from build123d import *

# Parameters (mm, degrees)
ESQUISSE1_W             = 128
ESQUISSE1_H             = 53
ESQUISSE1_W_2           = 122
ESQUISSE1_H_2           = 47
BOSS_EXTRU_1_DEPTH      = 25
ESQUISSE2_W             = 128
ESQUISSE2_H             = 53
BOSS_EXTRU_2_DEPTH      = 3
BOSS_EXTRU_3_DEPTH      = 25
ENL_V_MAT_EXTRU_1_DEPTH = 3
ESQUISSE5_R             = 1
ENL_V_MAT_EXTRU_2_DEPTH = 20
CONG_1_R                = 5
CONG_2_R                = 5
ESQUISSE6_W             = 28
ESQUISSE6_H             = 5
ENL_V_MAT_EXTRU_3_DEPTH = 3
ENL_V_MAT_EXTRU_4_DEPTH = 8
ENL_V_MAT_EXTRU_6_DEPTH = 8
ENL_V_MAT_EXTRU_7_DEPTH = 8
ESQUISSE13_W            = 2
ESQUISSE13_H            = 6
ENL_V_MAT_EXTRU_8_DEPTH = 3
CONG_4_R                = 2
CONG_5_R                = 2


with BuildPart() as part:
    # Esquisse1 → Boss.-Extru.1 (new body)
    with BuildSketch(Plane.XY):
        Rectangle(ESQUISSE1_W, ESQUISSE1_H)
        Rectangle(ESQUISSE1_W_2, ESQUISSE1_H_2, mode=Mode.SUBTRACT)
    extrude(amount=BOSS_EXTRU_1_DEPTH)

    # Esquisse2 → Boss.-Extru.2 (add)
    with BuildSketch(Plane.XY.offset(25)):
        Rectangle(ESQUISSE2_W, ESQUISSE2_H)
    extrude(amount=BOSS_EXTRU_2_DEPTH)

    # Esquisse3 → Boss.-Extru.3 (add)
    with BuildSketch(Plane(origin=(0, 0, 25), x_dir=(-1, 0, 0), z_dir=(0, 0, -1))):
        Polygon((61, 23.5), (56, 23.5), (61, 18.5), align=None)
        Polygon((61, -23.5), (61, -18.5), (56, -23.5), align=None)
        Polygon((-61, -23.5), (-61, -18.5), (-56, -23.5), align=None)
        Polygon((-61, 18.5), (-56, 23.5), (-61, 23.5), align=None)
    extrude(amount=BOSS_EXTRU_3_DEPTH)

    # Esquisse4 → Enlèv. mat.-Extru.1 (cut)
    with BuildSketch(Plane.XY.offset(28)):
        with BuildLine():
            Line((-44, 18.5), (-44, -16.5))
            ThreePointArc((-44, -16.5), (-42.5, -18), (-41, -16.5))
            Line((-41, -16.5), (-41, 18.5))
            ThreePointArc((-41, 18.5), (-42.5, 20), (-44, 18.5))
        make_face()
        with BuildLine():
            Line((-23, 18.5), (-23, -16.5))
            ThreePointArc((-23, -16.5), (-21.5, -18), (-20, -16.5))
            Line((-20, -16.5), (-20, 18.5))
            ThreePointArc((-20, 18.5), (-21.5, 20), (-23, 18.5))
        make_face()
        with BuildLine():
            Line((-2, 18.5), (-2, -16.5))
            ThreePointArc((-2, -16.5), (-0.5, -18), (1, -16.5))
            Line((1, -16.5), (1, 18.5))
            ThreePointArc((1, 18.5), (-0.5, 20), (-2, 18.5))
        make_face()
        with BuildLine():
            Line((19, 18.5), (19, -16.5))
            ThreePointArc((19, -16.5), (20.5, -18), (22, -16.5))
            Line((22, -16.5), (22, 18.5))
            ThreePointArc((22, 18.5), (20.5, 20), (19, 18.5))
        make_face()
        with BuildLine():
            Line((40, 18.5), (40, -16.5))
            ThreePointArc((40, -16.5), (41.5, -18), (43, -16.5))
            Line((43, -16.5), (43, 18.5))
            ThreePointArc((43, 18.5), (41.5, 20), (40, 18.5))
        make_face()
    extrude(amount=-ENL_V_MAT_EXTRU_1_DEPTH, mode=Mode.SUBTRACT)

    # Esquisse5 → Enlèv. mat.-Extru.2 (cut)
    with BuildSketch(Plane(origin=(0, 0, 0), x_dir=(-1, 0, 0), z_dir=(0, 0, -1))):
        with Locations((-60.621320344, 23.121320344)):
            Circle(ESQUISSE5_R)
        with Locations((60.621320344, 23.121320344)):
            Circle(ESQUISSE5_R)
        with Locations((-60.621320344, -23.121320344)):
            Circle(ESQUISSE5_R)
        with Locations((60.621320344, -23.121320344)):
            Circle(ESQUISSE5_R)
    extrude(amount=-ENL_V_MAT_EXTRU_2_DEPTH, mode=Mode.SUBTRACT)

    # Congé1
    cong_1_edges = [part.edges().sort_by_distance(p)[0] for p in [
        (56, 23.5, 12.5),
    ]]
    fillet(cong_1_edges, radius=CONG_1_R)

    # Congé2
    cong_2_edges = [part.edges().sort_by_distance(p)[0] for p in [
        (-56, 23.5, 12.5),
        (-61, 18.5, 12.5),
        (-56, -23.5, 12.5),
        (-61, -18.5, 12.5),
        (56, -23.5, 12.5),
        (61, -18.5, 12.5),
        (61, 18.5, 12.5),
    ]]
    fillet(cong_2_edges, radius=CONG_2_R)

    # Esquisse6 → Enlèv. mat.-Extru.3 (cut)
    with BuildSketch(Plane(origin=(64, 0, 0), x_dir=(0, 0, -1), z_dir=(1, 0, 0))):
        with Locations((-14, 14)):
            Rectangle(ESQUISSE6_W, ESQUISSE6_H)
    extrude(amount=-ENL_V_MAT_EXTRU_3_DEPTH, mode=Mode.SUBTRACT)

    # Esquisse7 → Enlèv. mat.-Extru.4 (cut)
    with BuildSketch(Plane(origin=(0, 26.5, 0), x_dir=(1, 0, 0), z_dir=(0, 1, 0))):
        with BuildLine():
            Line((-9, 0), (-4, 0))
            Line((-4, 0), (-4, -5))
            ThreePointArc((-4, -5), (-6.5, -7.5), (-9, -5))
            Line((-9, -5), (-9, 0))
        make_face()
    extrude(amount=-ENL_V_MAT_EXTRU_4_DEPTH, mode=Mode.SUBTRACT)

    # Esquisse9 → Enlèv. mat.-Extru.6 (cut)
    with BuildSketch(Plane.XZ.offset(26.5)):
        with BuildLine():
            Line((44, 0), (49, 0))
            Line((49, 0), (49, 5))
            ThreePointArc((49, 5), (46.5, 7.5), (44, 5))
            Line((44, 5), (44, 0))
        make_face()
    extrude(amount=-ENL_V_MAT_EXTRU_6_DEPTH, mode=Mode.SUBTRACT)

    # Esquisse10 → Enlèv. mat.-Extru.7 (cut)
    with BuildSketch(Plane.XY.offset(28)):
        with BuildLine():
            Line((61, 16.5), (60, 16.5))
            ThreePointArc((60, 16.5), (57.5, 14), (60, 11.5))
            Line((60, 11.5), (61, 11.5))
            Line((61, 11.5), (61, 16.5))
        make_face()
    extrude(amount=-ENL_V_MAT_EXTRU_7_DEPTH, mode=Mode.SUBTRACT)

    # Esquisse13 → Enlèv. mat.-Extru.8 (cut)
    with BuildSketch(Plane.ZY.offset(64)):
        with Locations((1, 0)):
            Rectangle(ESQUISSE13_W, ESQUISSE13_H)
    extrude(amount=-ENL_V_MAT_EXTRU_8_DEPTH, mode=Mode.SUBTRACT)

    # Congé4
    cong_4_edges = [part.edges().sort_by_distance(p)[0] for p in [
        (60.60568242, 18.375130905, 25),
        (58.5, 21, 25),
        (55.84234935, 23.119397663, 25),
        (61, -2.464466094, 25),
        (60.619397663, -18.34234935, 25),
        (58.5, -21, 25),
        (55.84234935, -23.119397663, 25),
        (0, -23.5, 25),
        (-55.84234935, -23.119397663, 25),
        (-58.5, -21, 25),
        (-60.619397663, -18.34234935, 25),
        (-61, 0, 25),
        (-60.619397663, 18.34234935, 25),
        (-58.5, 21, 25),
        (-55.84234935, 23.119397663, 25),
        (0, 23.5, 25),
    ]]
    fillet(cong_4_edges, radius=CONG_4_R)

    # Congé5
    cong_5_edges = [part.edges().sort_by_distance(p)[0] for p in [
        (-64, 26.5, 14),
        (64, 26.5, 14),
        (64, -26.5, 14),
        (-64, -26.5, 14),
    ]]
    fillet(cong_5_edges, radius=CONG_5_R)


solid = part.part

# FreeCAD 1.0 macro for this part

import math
import FreeCAD as App
import Part
import Sketcher
from FreeCAD import Vector


def edges_at(feature, points):
    """Names of the edges that pass closest to the given points."""
    edges = feature.Shape.Edges
    near = lambda p: min(range(len(edges)), key=lambda i: edges[i].distToShape(Part.Vertex(*p))[0])
    return sorted({f"Edge{near(p) + 1}" for p in points})

doc = App.newDocument("Part")
body = doc.addObject("PartDesign::Body", "Body")

# Sketch on XY plane
sketch1 = doc.addObject("Sketcher::SketchObject", "Sketch")
body.addObject(sketch1)
sketch1.AttachmentSupport = (doc.XY_Plane, [""])
sketch1.MapMode = "FlatFace"
sketch1.addGeometry(Part.LineSegment(Vector(-64, 26.5, 0), Vector(-64, -26.5, 0)), False)
sketch1.addGeometry(Part.LineSegment(Vector(-64, -26.5, 0), Vector(64, -26.5, 0)), False)
sketch1.addGeometry(Part.LineSegment(Vector(64, -26.5, 0), Vector(64, 26.5, 0)), False)
sketch1.addGeometry(Part.LineSegment(Vector(64, 26.5, 0), Vector(-64, 26.5, 0)), False)
sketch1.addGeometry(Part.LineSegment(Vector(61, -23.5, 0), Vector(-61, -23.5, 0)), False)
sketch1.addGeometry(Part.LineSegment(Vector(-61, -23.5, 0), Vector(-61, 23.5, 0)), False)
sketch1.addGeometry(Part.LineSegment(Vector(-61, 23.5, 0), Vector(61, 23.5, 0)), False)
sketch1.addGeometry(Part.LineSegment(Vector(61, 23.5, 0), Vector(61, -23.5, 0)), False)
sketch1.addConstraint(Sketcher.Constraint("Coincident", 0, 2, 1, 1))
sketch1.addConstraint(Sketcher.Constraint("Coincident", 1, 2, 2, 1))
sketch1.addConstraint(Sketcher.Constraint("Coincident", 2, 2, 3, 1))
sketch1.addConstraint(Sketcher.Constraint("Coincident", 3, 2, 0, 1))
sketch1.addConstraint(Sketcher.Constraint("Coincident", 4, 2, 5, 1))
sketch1.addConstraint(Sketcher.Constraint("Coincident", 5, 2, 6, 1))
sketch1.addConstraint(Sketcher.Constraint("Coincident", 6, 2, 7, 1))
sketch1.addConstraint(Sketcher.Constraint("Coincident", 7, 2, 4, 1))
sketch1.addConstraint(Sketcher.Constraint("Vertical", 0))
sketch1.addConstraint(Sketcher.Constraint("Horizontal", 1))
sketch1.addConstraint(Sketcher.Constraint("Vertical", 2))
sketch1.addConstraint(Sketcher.Constraint("Horizontal", 3))
sketch1.addConstraint(Sketcher.Constraint("Horizontal", 4))
sketch1.addConstraint(Sketcher.Constraint("Vertical", 5))
sketch1.addConstraint(Sketcher.Constraint("Horizontal", 6))
sketch1.addConstraint(Sketcher.Constraint("Vertical", 7))
sketch1.addConstraint(Sketcher.Constraint("Symmetric", 0, 2, 2, 2, -1, 1))
sketch1.addConstraint(Sketcher.Constraint("Symmetric", 4, 2, 6, 2, -1, 1))
sketch1.addConstraint(Sketcher.Constraint("DistanceX", 1, 1, 1, 2, 128.0))
sketch1.addConstraint(Sketcher.Constraint("DistanceX", 4, 2, 4, 1, 122.0))
sketch1.addConstraint(Sketcher.Constraint("DistanceY", 0, 2, 0, 1, 53.0))
sketch1.addConstraint(Sketcher.Constraint("DistanceY", 5, 1, 5, 2, 47.0))
pad1 = doc.addObject("PartDesign::Pad", "Pad")
body.addObject(pad1)
pad1.Profile = sketch1
pad1.Length = 25

# Sketch on XY plane
sketch2 = doc.addObject("Sketcher::SketchObject", "Sketch001")
body.addObject(sketch2)
sketch2.AttachmentSupport = (doc.XY_Plane, [""])
sketch2.MapMode = "FlatFace"
sketch2.AttachmentOffset = App.Placement(Vector(0, 0, 25), App.Rotation())
sketch2.addGeometry(Part.LineSegment(Vector(-64, 26.5, 0), Vector(-64, -26.5, 0)), False)
sketch2.addGeometry(Part.LineSegment(Vector(-64, -26.5, 0), Vector(64, -26.5, 0)), False)
sketch2.addGeometry(Part.LineSegment(Vector(64, -26.5, 0), Vector(64, 26.5, 0)), False)
sketch2.addGeometry(Part.LineSegment(Vector(64, 26.5, 0), Vector(-64, 26.5, 0)), False)
sketch2.addConstraint(Sketcher.Constraint("Coincident", 0, 2, 1, 1))
sketch2.addConstraint(Sketcher.Constraint("Coincident", 1, 2, 2, 1))
sketch2.addConstraint(Sketcher.Constraint("Coincident", 2, 2, 3, 1))
sketch2.addConstraint(Sketcher.Constraint("Coincident", 3, 2, 0, 1))
sketch2.addConstraint(Sketcher.Constraint("Vertical", 0))
sketch2.addConstraint(Sketcher.Constraint("Horizontal", 1))
sketch2.addConstraint(Sketcher.Constraint("Vertical", 2))
sketch2.addConstraint(Sketcher.Constraint("Horizontal", 3))
sketch2.addConstraint(Sketcher.Constraint("Symmetric", 0, 2, 2, 2, -1, 1))
sketch2.addConstraint(Sketcher.Constraint("DistanceX", 1, 1, 1, 2, 128.0))
sketch2.addConstraint(Sketcher.Constraint("DistanceY", 0, 2, 0, 1, 53.0))
pad2 = doc.addObject("PartDesign::Pad", "Pad001")
body.addObject(pad2)
pad2.Profile = sketch2
pad2.Length = 3

# Sketch on XY plane
sketch3 = doc.addObject("Sketcher::SketchObject", "Sketch002")
body.addObject(sketch3)
sketch3.AttachmentSupport = (doc.XY_Plane, [""])
sketch3.MapMode = "FlatFace"
sketch3.AttachmentOffset = App.Placement(Vector(0, 0, 25), App.Rotation())
sketch3.addGeometry(Part.LineSegment(Vector(-61, 23.5, 0), Vector(-56, 23.5, 0)), False)
sketch3.addGeometry(Part.LineSegment(Vector(-56, 23.5, 0), Vector(-61, 18.5, 0)), False)
sketch3.addGeometry(Part.LineSegment(Vector(-61, 18.5, 0), Vector(-61, 23.5, 0)), False)
sketch3.addGeometry(Part.LineSegment(Vector(-61, -23.5, 0), Vector(-61, -18.5, 0)), False)
sketch3.addGeometry(Part.LineSegment(Vector(-61, -18.5, 0), Vector(-56, -23.5, 0)), False)
sketch3.addGeometry(Part.LineSegment(Vector(-56, -23.5, 0), Vector(-61, -23.5, 0)), False)
sketch3.addGeometry(Part.LineSegment(Vector(61, -18.5, 0), Vector(61, -23.5, 0)), False)
sketch3.addGeometry(Part.LineSegment(Vector(61, -23.5, 0), Vector(56, -23.5, 0)), False)
sketch3.addGeometry(Part.LineSegment(Vector(56, -23.5, 0), Vector(61, -18.5, 0)), False)
sketch3.addGeometry(Part.LineSegment(Vector(61, 18.5, 0), Vector(56, 23.5, 0)), False)
sketch3.addGeometry(Part.LineSegment(Vector(56, 23.5, 0), Vector(61, 23.5, 0)), False)
sketch3.addGeometry(Part.LineSegment(Vector(61, 23.5, 0), Vector(61, 18.5, 0)), False)
sketch3.addConstraint(Sketcher.Constraint("Coincident", 0, 2, 1, 1))
sketch3.addConstraint(Sketcher.Constraint("Coincident", 1, 2, 2, 1))
sketch3.addConstraint(Sketcher.Constraint("Coincident", 2, 2, 0, 1))
sketch3.addConstraint(Sketcher.Constraint("Coincident", 3, 2, 4, 1))
sketch3.addConstraint(Sketcher.Constraint("Coincident", 4, 2, 5, 1))
sketch3.addConstraint(Sketcher.Constraint("Coincident", 5, 2, 3, 1))
sketch3.addConstraint(Sketcher.Constraint("Coincident", 6, 2, 7, 1))
sketch3.addConstraint(Sketcher.Constraint("Coincident", 7, 2, 8, 1))
sketch3.addConstraint(Sketcher.Constraint("Coincident", 8, 2, 6, 1))
sketch3.addConstraint(Sketcher.Constraint("Coincident", 9, 2, 10, 1))
sketch3.addConstraint(Sketcher.Constraint("Coincident", 10, 2, 11, 1))
sketch3.addConstraint(Sketcher.Constraint("Coincident", 11, 2, 9, 1))
sketch3.addConstraint(Sketcher.Constraint("Horizontal", 0))
sketch3.addConstraint(Sketcher.Constraint("Vertical", 2))
sketch3.addConstraint(Sketcher.Constraint("Vertical", 3))
sketch3.addConstraint(Sketcher.Constraint("Horizontal", 5))
sketch3.addConstraint(Sketcher.Constraint("Vertical", 6))
sketch3.addConstraint(Sketcher.Constraint("Horizontal", 7))
sketch3.addConstraint(Sketcher.Constraint("Horizontal", 10))
sketch3.addConstraint(Sketcher.Constraint("Vertical", 11))
sketch3.addConstraint(Sketcher.Constraint("Symmetric", 2, 2, 6, 2, -1, 1))
sketch3.addConstraint(Sketcher.Constraint("Symmetric", 4, 2, 9, 2, -1, 1))
sketch3.addConstraint(Sketcher.Constraint("Symmetric", 3, 2, 11, 2, -1, 1))
sketch3.addConstraint(Sketcher.Constraint("Symmetric", 5, 2, 6, 2, -2))
sketch3.addConstraint(Sketcher.Constraint("Perpendicular", 1, 4))
sketch3.addConstraint(Sketcher.Constraint("Perpendicular", 4, 8))
sketch3.addConstraint(Sketcher.Constraint("Horizontal", 3, 2, 8, 2))
sketch3.addConstraint(Sketcher.Constraint("Horizontal", 1, 2, 11, 2))
sketch3.addConstraint(Sketcher.Constraint("Vertical", 0, 2, 4, 2))
sketch3.addConstraint(Sketcher.Constraint("DistanceX", 0, 1, 0, 2, 5.0))
sketch3.addConstraint(Sketcher.Constraint("DistanceX", 0, 2, -1, 1, 56.0))
sketch3.addConstraint(Sketcher.Constraint("DistanceY", 3, 2, 1, 2, 37.0))
pad3 = doc.addObject("PartDesign::Pad", "Pad002")
body.addObject(pad3)
pad3.Profile = sketch3
pad3.Length = 25
pad3.Reversed = True

# Sketch on XY plane
sketch4 = doc.addObject("Sketcher::SketchObject", "Sketch003")
body.addObject(sketch4)
sketch4.AttachmentSupport = (doc.XY_Plane, [""])
sketch4.MapMode = "FlatFace"
sketch4.AttachmentOffset = App.Placement(Vector(0, 0, 28), App.Rotation())
sketch4.addGeometry(Part.LineSegment(Vector(-44, 18.5, 0), Vector(-44, -16.5, 0)), False)
sketch4.addGeometry(Part.ArcOfCircle(Part.Circle(Vector(-42.5, -16.5, 0), Vector(0, 0, 1), 1.5), math.radians(180), math.radians(360)), False)
sketch4.addGeometry(Part.LineSegment(Vector(-41, -16.5, 0), Vector(-41, 18.5, 0)), False)
sketch4.addGeometry(Part.ArcOfCircle(Part.Circle(Vector(-42.5, 18.5, 0), Vector(0, 0, 1), 1.5), math.radians(0), math.radians(180)), False)
sketch4.addGeometry(Part.LineSegment(Vector(-23, 18.5, 0), Vector(-23, -16.5, 0)), False)
sketch4.addGeometry(Part.ArcOfCircle(Part.Circle(Vector(-21.5, -16.5, 0), Vector(0, 0, 1), 1.5), math.radians(180), math.radians(360)), False)
sketch4.addGeometry(Part.LineSegment(Vector(-20, -16.5, 0), Vector(-20, 18.5, 0)), False)
sketch4.addGeometry(Part.ArcOfCircle(Part.Circle(Vector(-21.5, 18.5, 0), Vector(0, 0, 1), 1.5), math.radians(0), math.radians(180)), False)
sketch4.addGeometry(Part.LineSegment(Vector(-2, 18.5, 0), Vector(-2, -16.5, 0)), False)
sketch4.addGeometry(Part.ArcOfCircle(Part.Circle(Vector(-0.5, -16.5, 0), Vector(0, 0, 1), 1.5), math.radians(180), math.radians(360)), False)
sketch4.addGeometry(Part.LineSegment(Vector(1, -16.5, 0), Vector(1, 18.5, 0)), False)
sketch4.addGeometry(Part.ArcOfCircle(Part.Circle(Vector(-0.5, 18.5, 0), Vector(0, 0, 1), 1.5), math.radians(0), math.radians(180)), False)
sketch4.addGeometry(Part.LineSegment(Vector(19, 18.5, 0), Vector(19, -16.5, 0)), False)
sketch4.addGeometry(Part.ArcOfCircle(Part.Circle(Vector(20.5, -16.5, 0), Vector(0, 0, 1), 1.5), math.radians(180), math.radians(360)), False)
sketch4.addGeometry(Part.LineSegment(Vector(22, -16.5, 0), Vector(22, 18.5, 0)), False)
sketch4.addGeometry(Part.ArcOfCircle(Part.Circle(Vector(20.5, 18.5, 0), Vector(0, 0, 1), 1.5), math.radians(0), math.radians(180)), False)
sketch4.addGeometry(Part.LineSegment(Vector(40, 18.5, 0), Vector(40, -16.5, 0)), False)
sketch4.addGeometry(Part.ArcOfCircle(Part.Circle(Vector(41.5, -16.5, 0), Vector(0, 0, 1), 1.5), math.radians(180), math.radians(360)), False)
sketch4.addGeometry(Part.LineSegment(Vector(43, -16.5, 0), Vector(43, 18.5, 0)), False)
sketch4.addGeometry(Part.ArcOfCircle(Part.Circle(Vector(41.5, 18.5, 0), Vector(0, 0, 1), 1.5), math.radians(0), math.radians(180)), False)
sketch4.addConstraint(Sketcher.Constraint("Tangent", 0, 2, 1, 1))
sketch4.addConstraint(Sketcher.Constraint("Tangent", 1, 2, 2, 1))
sketch4.addConstraint(Sketcher.Constraint("Tangent", 2, 2, 3, 1))
sketch4.addConstraint(Sketcher.Constraint("Tangent", 3, 2, 0, 1))
sketch4.addConstraint(Sketcher.Constraint("Tangent", 4, 2, 5, 1))
sketch4.addConstraint(Sketcher.Constraint("Tangent", 5, 2, 6, 1))
sketch4.addConstraint(Sketcher.Constraint("Tangent", 6, 2, 7, 1))
sketch4.addConstraint(Sketcher.Constraint("Tangent", 7, 2, 4, 1))
sketch4.addConstraint(Sketcher.Constraint("Tangent", 8, 2, 9, 1))
sketch4.addConstraint(Sketcher.Constraint("Tangent", 9, 2, 10, 1))
sketch4.addConstraint(Sketcher.Constraint("Tangent", 10, 2, 11, 1))
sketch4.addConstraint(Sketcher.Constraint("Tangent", 11, 2, 8, 1))
sketch4.addConstraint(Sketcher.Constraint("Tangent", 12, 2, 13, 1))
sketch4.addConstraint(Sketcher.Constraint("Tangent", 13, 2, 14, 1))
sketch4.addConstraint(Sketcher.Constraint("Tangent", 14, 2, 15, 1))
sketch4.addConstraint(Sketcher.Constraint("Tangent", 15, 2, 12, 1))
sketch4.addConstraint(Sketcher.Constraint("Tangent", 16, 2, 17, 1))
sketch4.addConstraint(Sketcher.Constraint("Tangent", 17, 2, 18, 1))
sketch4.addConstraint(Sketcher.Constraint("Tangent", 18, 2, 19, 1))
sketch4.addConstraint(Sketcher.Constraint("Tangent", 19, 2, 16, 1))
sketch4.addConstraint(Sketcher.Constraint("Vertical", 0))
sketch4.addConstraint(Sketcher.Constraint("Vertical", 2))
sketch4.addConstraint(Sketcher.Constraint("Vertical", 4))
sketch4.addConstraint(Sketcher.Constraint("Vertical", 6))
sketch4.addConstraint(Sketcher.Constraint("Vertical", 8))
sketch4.addConstraint(Sketcher.Constraint("Vertical", 10))
sketch4.addConstraint(Sketcher.Constraint("Vertical", 12))
sketch4.addConstraint(Sketcher.Constraint("Vertical", 14))
sketch4.addConstraint(Sketcher.Constraint("Vertical", 16))
sketch4.addConstraint(Sketcher.Constraint("Vertical", 18))
sketch4.addConstraint(Sketcher.Constraint("Equal", 3, 5))
sketch4.addConstraint(Sketcher.Constraint("Equal", 7, 9))
sketch4.addConstraint(Sketcher.Constraint("Equal", 11, 13))
sketch4.addConstraint(Sketcher.Constraint("Equal", 15, 17))
sketch4.addConstraint(Sketcher.Constraint("Horizontal", 1, 3, 5, 3))
sketch4.addConstraint(Sketcher.Constraint("Horizontal", 3, 3, 7, 3))
sketch4.addConstraint(Sketcher.Constraint("Horizontal", 5, 3, 9, 3))
sketch4.addConstraint(Sketcher.Constraint("Horizontal", 7, 3, 11, 3))
sketch4.addConstraint(Sketcher.Constraint("Horizontal", 9, 3, 13, 3))
sketch4.addConstraint(Sketcher.Constraint("Horizontal", 11, 3, 15, 3))
sketch4.addConstraint(Sketcher.Constraint("Horizontal", 13, 3, 17, 3))
sketch4.addConstraint(Sketcher.Constraint("Horizontal", 15, 3, 19, 3))
sketch4.addConstraint(Sketcher.Constraint("Radius", 1, 1.5))
sketch4.addConstraint(Sketcher.Constraint("DistanceY", 0, 2, 0, 1, 35.0))
sketch4.addConstraint(Sketcher.Constraint("DistanceX", 0, 2, -1, 1, 44.0))
sketch4.addConstraint(Sketcher.Constraint("DistanceX", 4, 2, -1, 1, 23.0))
sketch4.addConstraint(Sketcher.Constraint("DistanceX", 8, 2, -1, 1, 2.0))
sketch4.addConstraint(Sketcher.Constraint("DistanceX", -1, 1, 12, 2, 19.0))
sketch4.addConstraint(Sketcher.Constraint("DistanceX", -1, 1, 16, 2, 40.0))
sketch4.addConstraint(Sketcher.Constraint("DistanceY", 1, 3, -1, 1, 16.5))
pocket1 = doc.addObject("PartDesign::Pocket", "Pocket")
body.addObject(pocket1)
pocket1.Profile = sketch4
pocket1.Length = 3

# Sketch on XY plane
sketch5 = doc.addObject("Sketcher::SketchObject", "Sketch004")
body.addObject(sketch5)
sketch5.AttachmentSupport = (doc.XY_Plane, [""])
sketch5.MapMode = "FlatFace"
sketch5.addGeometry(Part.Circle(Vector(60.62132, 23.12132, 0), Vector(0, 0, 1), 1), False)
sketch5.addGeometry(Part.Circle(Vector(-60.62132, 23.12132, 0), Vector(0, 0, 1), 1), False)
sketch5.addGeometry(Part.Circle(Vector(60.62132, -23.12132, 0), Vector(0, 0, 1), 1), False)
sketch5.addGeometry(Part.Circle(Vector(-60.62132, -23.12132, 0), Vector(0, 0, 1), 1), False)
sketch5.addConstraint(Sketcher.Constraint("Equal", 0, 1))
sketch5.addConstraint(Sketcher.Constraint("Equal", 1, 2))
sketch5.addConstraint(Sketcher.Constraint("Equal", 2, 3))
sketch5.addConstraint(Sketcher.Constraint("Symmetric", 1, 3, 2, 3, -1, 1))
sketch5.addConstraint(Sketcher.Constraint("Symmetric", 0, 3, 3, 3, -1, 1))
sketch5.addConstraint(Sketcher.Constraint("Symmetric", 0, 3, 1, 3, -2))
sketch5.addConstraint(Sketcher.Constraint("Diameter", 0, 2.0))
sketch5.addConstraint(Sketcher.Constraint("DistanceX", -1, 1, 0, 3, 60.62132))
sketch5.addConstraint(Sketcher.Constraint("DistanceY", -1, 1, 0, 3, 23.12132))
pocket2 = doc.addObject("PartDesign::Pocket", "Pocket001")
body.addObject(pocket2)
pocket2.Profile = sketch5
pocket2.Length = 20
pocket2.Reversed = True
doc.recompute()

fillet = doc.addObject("PartDesign::Fillet", "Fillet")
body.addObject(fillet)
fillet.Base = (pocket2, edges_at(pocket2, [(56, 23.5, 12.5)]))
fillet.Radius = 5
doc.recompute()

fillet2 = doc.addObject("PartDesign::Fillet", "Fillet001")
body.addObject(fillet2)
fillet2.Base = (fillet, edges_at(fillet, [
    (-56, 23.5, 12.5),
    (-61, 18.5, 12.5),
    (-56, -23.5, 12.5),
    (-61, -18.5, 12.5),
    (56, -23.5, 12.5),
    (61, -18.5, 12.5),
    (61, 18.5, 12.5),
]))
fillet2.Radius = 5

# Sketch on YZ plane
sketch6 = doc.addObject("Sketcher::SketchObject", "Sketch005")
body.addObject(sketch6)
sketch6.AttachmentSupport = (doc.YZ_Plane, [""])
sketch6.MapMode = "FlatFace"
sketch6.AttachmentOffset = App.Placement(Vector(0, 0, 64), App.Rotation())
sketch6.addGeometry(Part.LineSegment(Vector(16.5, 28, 0), Vector(11.5, 28, 0)), False)
sketch6.addGeometry(Part.LineSegment(Vector(11.5, 28, 0), Vector(11.5, 0, 0)), False)
sketch6.addGeometry(Part.LineSegment(Vector(11.5, 0, 0), Vector(16.5, 0, 0)), False)
sketch6.addGeometry(Part.LineSegment(Vector(16.5, 0, 0), Vector(16.5, 28, 0)), False)
sketch6.addConstraint(Sketcher.Constraint("Coincident", 0, 2, 1, 1))
sketch6.addConstraint(Sketcher.Constraint("Coincident", 1, 2, 2, 1))
sketch6.addConstraint(Sketcher.Constraint("Coincident", 2, 2, 3, 1))
sketch6.addConstraint(Sketcher.Constraint("Coincident", 3, 2, 0, 1))
sketch6.addConstraint(Sketcher.Constraint("Horizontal", 0))
sketch6.addConstraint(Sketcher.Constraint("Vertical", 1))
sketch6.addConstraint(Sketcher.Constraint("Horizontal", 2))
sketch6.addConstraint(Sketcher.Constraint("Vertical", 3))
sketch6.addConstraint(Sketcher.Constraint("PointOnObject", 1, 2, -1))
sketch6.addConstraint(Sketcher.Constraint("DistanceX", 0, 2, 0, 1, 5.0))
sketch6.addConstraint(Sketcher.Constraint("DistanceY", 1, 2, 1, 1, 28.0))
sketch6.addConstraint(Sketcher.Constraint("DistanceX", -1, 1, 0, 2, 11.5))
pocket3 = doc.addObject("PartDesign::Pocket", "Pocket002")
body.addObject(pocket3)
pocket3.Profile = sketch6
pocket3.Length = 3

# Sketch on XZ plane
sketch7 = doc.addObject("Sketcher::SketchObject", "Sketch006")
body.addObject(sketch7)
sketch7.AttachmentSupport = (doc.XZ_Plane, [""])
sketch7.MapMode = "FlatFace"
sketch7.AttachmentOffset = App.Placement(Vector(0, 0, -26.5), App.Rotation())
sketch7.addGeometry(Part.LineSegment(Vector(-4, 0, 0), Vector(-9, 0, 0)), False)
sketch7.addGeometry(Part.LineSegment(Vector(-9, 0, 0), Vector(-9, 5, 0)), False)
sketch7.addGeometry(Part.ArcOfCircle(Part.Circle(Vector(-6.5, 5, 0), Vector(0, 0, 1), 2.5), math.radians(0), math.radians(180)), False)
sketch7.addGeometry(Part.LineSegment(Vector(-4, 5, 0), Vector(-4, 0, 0)), False)
sketch7.addConstraint(Sketcher.Constraint("Coincident", 0, 2, 1, 1))
sketch7.addConstraint(Sketcher.Constraint("Tangent", 1, 2, 2, 2))
sketch7.addConstraint(Sketcher.Constraint("Tangent", 2, 1, 3, 1))
sketch7.addConstraint(Sketcher.Constraint("Coincident", 3, 2, 0, 1))
sketch7.addConstraint(Sketcher.Constraint("Horizontal", 0))
sketch7.addConstraint(Sketcher.Constraint("Vertical", 1))
sketch7.addConstraint(Sketcher.Constraint("Vertical", 3))
sketch7.addConstraint(Sketcher.Constraint("PointOnObject", 0, 2, -1))
sketch7.addConstraint(Sketcher.Constraint("Equal", 0, 1))
sketch7.addConstraint(Sketcher.Constraint("Radius", 2, 2.5))
sketch7.addConstraint(Sketcher.Constraint("DistanceX", 0, 2, -1, 1, 9.0))
pocket4 = doc.addObject("PartDesign::Pocket", "Pocket003")
body.addObject(pocket4)
pocket4.Profile = sketch7
pocket4.Length = 8
pocket4.Reversed = True

# Sketch on XZ plane
sketch8 = doc.addObject("Sketcher::SketchObject", "Sketch007")
body.addObject(sketch8)
sketch8.AttachmentSupport = (doc.XZ_Plane, [""])
sketch8.MapMode = "FlatFace"
sketch8.AttachmentOffset = App.Placement(Vector(0, 0, 26.5), App.Rotation())
sketch8.addGeometry(Part.LineSegment(Vector(44, 0, 0), Vector(49, 0, 0)), False)
sketch8.addGeometry(Part.LineSegment(Vector(49, 0, 0), Vector(49, 5, 0)), False)
sketch8.addGeometry(Part.ArcOfCircle(Part.Circle(Vector(46.5, 5, 0), Vector(0, 0, 1), 2.5), math.radians(0), math.radians(180)), False)
sketch8.addGeometry(Part.LineSegment(Vector(44, 5, 0), Vector(44, 0, 0)), False)
sketch8.addConstraint(Sketcher.Constraint("Coincident", 0, 2, 1, 1))
sketch8.addConstraint(Sketcher.Constraint("Tangent", 1, 2, 2, 1))
sketch8.addConstraint(Sketcher.Constraint("Tangent", 2, 2, 3, 1))
sketch8.addConstraint(Sketcher.Constraint("Coincident", 3, 2, 0, 1))
sketch8.addConstraint(Sketcher.Constraint("Horizontal", 0))
sketch8.addConstraint(Sketcher.Constraint("Vertical", 1))
sketch8.addConstraint(Sketcher.Constraint("Vertical", 3))
sketch8.addConstraint(Sketcher.Constraint("PointOnObject", 0, 2, -1))
sketch8.addConstraint(Sketcher.Constraint("Equal", 0, 1))
sketch8.addConstraint(Sketcher.Constraint("Radius", 2, 2.5))
sketch8.addConstraint(Sketcher.Constraint("DistanceX", -1, 1, 0, 2, 49.0))
pocket5 = doc.addObject("PartDesign::Pocket", "Pocket004")
body.addObject(pocket5)
pocket5.Profile = sketch8
pocket5.Length = 8

# Sketch on XY plane
sketch9 = doc.addObject("Sketcher::SketchObject", "Sketch008")
body.addObject(sketch9)
sketch9.AttachmentSupport = (doc.XY_Plane, [""])
sketch9.MapMode = "FlatFace"
sketch9.AttachmentOffset = App.Placement(Vector(0, 0, 28), App.Rotation())
sketch9.addGeometry(Part.LineSegment(Vector(61, 16.5, 0), Vector(60, 16.5, 0)), False)
sketch9.addGeometry(Part.ArcOfCircle(Part.Circle(Vector(60, 14, 0), Vector(0, 0, 1), 2.5), math.radians(90), math.radians(270)), False)
sketch9.addGeometry(Part.LineSegment(Vector(60, 11.5, 0), Vector(61, 11.5, 0)), False)
sketch9.addGeometry(Part.LineSegment(Vector(61, 11.5, 0), Vector(61, 16.5, 0)), False)
sketch9.addConstraint(Sketcher.Constraint("Tangent", 0, 2, 1, 1))
sketch9.addConstraint(Sketcher.Constraint("Tangent", 1, 2, 2, 1))
sketch9.addConstraint(Sketcher.Constraint("Coincident", 2, 2, 3, 1))
sketch9.addConstraint(Sketcher.Constraint("Coincident", 3, 2, 0, 1))
sketch9.addConstraint(Sketcher.Constraint("Horizontal", 0))
sketch9.addConstraint(Sketcher.Constraint("Horizontal", 2))
sketch9.addConstraint(Sketcher.Constraint("Vertical", 3))
sketch9.addConstraint(Sketcher.Constraint("Radius", 1, 2.5))
sketch9.addConstraint(Sketcher.Constraint("DistanceX", 0, 2, 0, 1, 1.0))
sketch9.addConstraint(Sketcher.Constraint("DistanceX", -1, 1, 1, 3, 60.0))
sketch9.addConstraint(Sketcher.Constraint("DistanceY", -1, 1, 1, 3, 14.0))
pocket6 = doc.addObject("PartDesign::Pocket", "Pocket005")
body.addObject(pocket6)
pocket6.Profile = sketch9
pocket6.Length = 8

# Sketch on YZ plane
sketch10 = doc.addObject("Sketcher::SketchObject", "Sketch009")
body.addObject(sketch10)
sketch10.AttachmentSupport = (doc.YZ_Plane, [""])
sketch10.MapMode = "FlatFace"
sketch10.AttachmentOffset = App.Placement(Vector(0, 0, -64), App.Rotation())
sketch10.addGeometry(Part.LineSegment(Vector(3, 0, 0), Vector(-3, 0, 0)), False)
sketch10.addGeometry(Part.LineSegment(Vector(-3, 0, 0), Vector(-3, 2, 0)), False)
sketch10.addGeometry(Part.LineSegment(Vector(-3, 2, 0), Vector(3, 2, 0)), False)
sketch10.addGeometry(Part.LineSegment(Vector(3, 2, 0), Vector(3, 0, 0)), False)
sketch10.addConstraint(Sketcher.Constraint("Coincident", 0, 2, 1, 1))
sketch10.addConstraint(Sketcher.Constraint("Coincident", 1, 2, 2, 1))
sketch10.addConstraint(Sketcher.Constraint("Coincident", 2, 2, 3, 1))
sketch10.addConstraint(Sketcher.Constraint("Coincident", 3, 2, 0, 1))
sketch10.addConstraint(Sketcher.Constraint("Horizontal", 0))
sketch10.addConstraint(Sketcher.Constraint("Vertical", 1))
sketch10.addConstraint(Sketcher.Constraint("Horizontal", 2))
sketch10.addConstraint(Sketcher.Constraint("Vertical", 3))
sketch10.addConstraint(Sketcher.Constraint("Symmetric", 0, 2, 3, 2, -1, 1))
sketch10.addConstraint(Sketcher.Constraint("DistanceX", 0, 2, 0, 1, 6.0))
sketch10.addConstraint(Sketcher.Constraint("DistanceY", 1, 1, 1, 2, 2.0))
pocket7 = doc.addObject("PartDesign::Pocket", "Pocket006")
body.addObject(pocket7)
pocket7.Profile = sketch10
pocket7.Length = 3
pocket7.Reversed = True
doc.recompute()

fillet3 = doc.addObject("PartDesign::Fillet", "Fillet002")
body.addObject(fillet3)
fillet3.Base = (pocket7, edges_at(pocket7, [
    (60.606, 18.375, 25),
    (58.5, 21, 25),
    (55.842, 23.119, 25),
    (61, -2.464, 25),
    (60.619, -18.342, 25),
    (58.5, -21, 25),
    (55.842, -23.119, 25),
    (0, -23.5, 25),
    (-55.842, -23.119, 25),
    (-58.5, -21, 25),
    (-60.619, -18.342, 25),
    (-61, 0, 25),
    (-60.619, 18.342, 25),
    (-58.5, 21, 25),
    (-55.842, 23.119, 25),
    (0, 23.5, 25),
]))
fillet3.Radius = 2
doc.recompute()

fillet4 = doc.addObject("PartDesign::Fillet", "Fillet003")
body.addObject(fillet4)
fillet4.Base = (fillet3, edges_at(fillet3, [
    (-64, 26.5, 14),
    (64, 26.5, 14),
    (64, -26.5, 14),
    (-64, -26.5, 14),
]))
fillet4.Radius = 2

doc.recompute()
